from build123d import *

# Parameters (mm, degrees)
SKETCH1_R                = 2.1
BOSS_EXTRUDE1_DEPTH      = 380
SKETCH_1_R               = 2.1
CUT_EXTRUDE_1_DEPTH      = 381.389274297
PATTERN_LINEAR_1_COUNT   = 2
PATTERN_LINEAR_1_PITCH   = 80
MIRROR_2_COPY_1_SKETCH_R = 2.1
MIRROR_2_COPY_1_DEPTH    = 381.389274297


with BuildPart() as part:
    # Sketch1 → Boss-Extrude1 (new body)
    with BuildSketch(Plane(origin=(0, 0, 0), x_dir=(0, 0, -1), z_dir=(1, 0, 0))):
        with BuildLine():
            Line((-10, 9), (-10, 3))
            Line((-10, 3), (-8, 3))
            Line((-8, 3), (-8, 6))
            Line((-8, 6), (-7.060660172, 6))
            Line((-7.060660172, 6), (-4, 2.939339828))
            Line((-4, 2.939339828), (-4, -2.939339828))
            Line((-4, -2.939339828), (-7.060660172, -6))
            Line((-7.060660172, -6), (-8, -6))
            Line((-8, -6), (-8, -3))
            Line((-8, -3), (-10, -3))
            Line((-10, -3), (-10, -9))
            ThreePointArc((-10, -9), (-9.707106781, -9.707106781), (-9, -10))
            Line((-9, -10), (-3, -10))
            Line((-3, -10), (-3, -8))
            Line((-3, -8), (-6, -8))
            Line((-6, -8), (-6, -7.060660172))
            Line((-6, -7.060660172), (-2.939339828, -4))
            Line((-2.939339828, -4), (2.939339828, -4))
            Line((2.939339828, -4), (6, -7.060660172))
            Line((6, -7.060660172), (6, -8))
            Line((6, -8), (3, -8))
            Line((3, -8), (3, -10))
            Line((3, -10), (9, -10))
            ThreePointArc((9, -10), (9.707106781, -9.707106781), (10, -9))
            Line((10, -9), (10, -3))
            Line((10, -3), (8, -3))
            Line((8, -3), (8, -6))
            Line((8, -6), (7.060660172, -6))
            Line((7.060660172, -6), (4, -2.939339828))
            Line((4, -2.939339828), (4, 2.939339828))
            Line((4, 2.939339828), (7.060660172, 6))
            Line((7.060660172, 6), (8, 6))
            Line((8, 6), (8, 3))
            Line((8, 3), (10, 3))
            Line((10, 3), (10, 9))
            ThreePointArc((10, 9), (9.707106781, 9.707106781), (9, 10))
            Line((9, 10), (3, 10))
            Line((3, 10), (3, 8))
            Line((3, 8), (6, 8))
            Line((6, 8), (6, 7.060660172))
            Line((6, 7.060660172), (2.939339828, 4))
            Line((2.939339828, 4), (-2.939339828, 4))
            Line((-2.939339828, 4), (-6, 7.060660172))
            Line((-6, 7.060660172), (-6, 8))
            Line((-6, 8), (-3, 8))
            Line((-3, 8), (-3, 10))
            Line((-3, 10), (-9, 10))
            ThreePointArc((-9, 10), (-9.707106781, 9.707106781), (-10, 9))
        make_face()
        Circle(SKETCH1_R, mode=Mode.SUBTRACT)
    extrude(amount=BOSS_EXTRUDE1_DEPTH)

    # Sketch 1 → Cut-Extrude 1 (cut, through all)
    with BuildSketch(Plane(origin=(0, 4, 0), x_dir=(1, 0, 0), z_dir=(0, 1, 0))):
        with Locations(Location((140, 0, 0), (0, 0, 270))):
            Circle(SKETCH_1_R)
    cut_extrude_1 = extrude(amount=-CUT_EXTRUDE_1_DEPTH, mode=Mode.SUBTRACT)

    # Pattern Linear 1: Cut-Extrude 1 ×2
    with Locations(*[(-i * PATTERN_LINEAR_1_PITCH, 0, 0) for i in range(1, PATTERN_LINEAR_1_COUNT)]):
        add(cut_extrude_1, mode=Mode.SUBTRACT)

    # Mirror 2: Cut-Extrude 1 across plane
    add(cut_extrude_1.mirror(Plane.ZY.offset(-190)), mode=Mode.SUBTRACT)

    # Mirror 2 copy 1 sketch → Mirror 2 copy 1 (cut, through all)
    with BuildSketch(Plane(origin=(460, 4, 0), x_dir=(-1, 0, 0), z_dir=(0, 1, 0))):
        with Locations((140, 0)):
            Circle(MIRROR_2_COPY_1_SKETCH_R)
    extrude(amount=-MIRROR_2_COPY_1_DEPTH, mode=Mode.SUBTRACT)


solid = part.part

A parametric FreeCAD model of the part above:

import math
import FreeCAD as App
import Part
import Sketcher
from FreeCAD import Vector

doc = App.newDocument("Part")
params = doc.addObject("Spreadsheet::Sheet", "Params")
for row, (alias, value) in enumerate([
    ("sketch1_radius", "1 mm"),
    ("sketch1_diameter", "4.2 mm"),
    ("sketch1_width", "6 mm"),
    ("sketch1_width2", "3 mm"),
    ("sketch1_width3", "2 mm"),
    ("pad1_length", "380 mm"),
    ("sketch2_diameter", "4.2 mm"),
    ("linearpattern_pitch", "80 mm"),
    ("sketch3_diameter", "4.2 mm"),
], start=1):
    params.set(f"A{row}", alias)
    params.set(f"B{row}", "=" + value)
    params.setAlias(f"B{row}", alias)

body = doc.addObject("PartDesign::Body", "Body")

# Sketch on YZ plane
sketch1 = body.newObject("Sketcher::SketchObject", "Sketch")
sketch1.AttachmentSupport = (doc.getObject("YZ_Plane"), [""])
sketch1.MapMode = "FlatFace"
sketch1.addGeometry(Part.LineSegment(Vector(9, 10, 0), Vector(3, 10, 0)), False)
sketch1.addGeometry(Part.LineSegment(Vector(3, 10, 0), Vector(3, 8, 0)), False)
sketch1.addGeometry(Part.LineSegment(Vector(3, 8, 0), Vector(6, 8, 0)), False)
sketch1.addGeometry(Part.LineSegment(Vector(6, 8, 0), Vector(6, 7.1, 0)), False)
sketch1.addGeometry(Part.LineSegment(Vector(6, 7.1, 0), Vector(2.9, 4, 0)), False)
sketch1.addGeometry(Part.LineSegment(Vector(2.9, 4, 0), Vector(-2.9, 4, 0)), False)
sketch1.addGeometry(Part.LineSegment(Vector(-2.9, 4, 0), Vector(-6, 7.1, 0)), False)
sketch1.addGeometry(Part.LineSegment(Vector(-6, 7.1, 0), Vector(-6, 8, 0)), False)
sketch1.addGeometry(Part.LineSegment(Vector(-6, 8, 0), Vector(-3, 8, 0)), False)
sketch1.addGeometry(Part.LineSegment(Vector(-3, 8, 0), Vector(-3, 10, 0)), False)
sketch1.addGeometry(Part.LineSegment(Vector(-3, 10, 0), Vector(-9, 10, 0)), False)
sketch1.addGeometry(Part.ArcOfCircle(Part.Circle(Vector(-9, 9, 0), Vector(0, 0, 1), 1), math.radians(90), math.radians(180)), False)
sketch1.addGeometry(Part.LineSegment(Vector(-10, 9, 0), Vector(-10, 3, 0)), False)
sketch1.addGeometry(Part.LineSegment(Vector(-10, 3, 0), Vector(-8, 3, 0)), False)
sketch1.addGeometry(Part.LineSegment(Vector(-8, 3, 0), Vector(-8, 6, 0)), False)
sketch1.addGeometry(Part.LineSegment(Vector(-8, 6, 0), Vector(-7.1, 6, 0)), False)
sketch1.addGeometry(Part.LineSegment(Vector(-7.1, 6, 0), Vector(-4, 2.9, 0)), False)
sketch1.addGeometry(Part.LineSegment(Vector(-4, 2.9, 0), Vector(-4, -2.9, 0)), False)
sketch1.addGeometry(Part.LineSegment(Vector(-4, -2.9, 0), Vector(-7.1, -6, 0)), False)
sketch1.addGeometry(Part.LineSegment(Vector(-7.1, -6, 0), Vector(-8, -6, 0)), False)
sketch1.addGeometry(Part.LineSegment(Vector(-8, -6, 0), Vector(-8, -3, 0)), False)
sketch1.addGeometry(Part.LineSegment(Vector(-8, -3, 0), Vector(-10, -3, 0)), False)
sketch1.addGeometry(Part.LineSegment(Vector(-10, -3, 0), Vector(-10, -9, 0)), False)
sketch1.addGeometry(Part.ArcOfCircle(Part.Circle(Vector(-9, -9, 0), Vector(0, 0, 1), 1), math.radians(-180), math.radians(-90)), False)
sketch1.addGeometry(Part.LineSegment(Vector(-9, -10, 0), Vector(-3, -10, 0)), False)
sketch1.addGeometry(Part.LineSegment(Vector(-3, -10, 0), Vector(-3, -8, 0)), False)
sketch1.addGeometry(Part.LineSegment(Vector(-3, -8, 0), Vector(-6, -8, 0)), False)
sketch1.addGeometry(Part.LineSegment(Vector(-6, -8, 0), Vector(-6, -7.1, 0)), False)
sketch1.addGeometry(Part.LineSegment(Vector(-6, -7.1, 0), Vector(-2.9, -4, 0)), False)
sketch1.addGeometry(Part.LineSegment(Vector(-2.9, -4, 0), Vector(2.9, -4, 0)), False)
sketch1.addGeometry(Part.LineSegment(Vector(2.9, -4, 0), Vector(6, -7.1, 0)), False)
sketch1.addGeometry(Part.LineSegment(Vector(6, -7.1, 0), Vector(6, -8, 0)), False)
sketch1.addGeometry(Part.LineSegment(Vector(6, -8, 0), Vector(3, -8, 0)), False)
sketch1.addGeometry(Part.LineSegment(Vector(3, -8, 0), Vector(3, -10, 0)), False)
sketch1.addGeometry(Part.LineSegment(Vector(3, -10, 0), Vector(9, -10, 0)), False)
sketch1.addGeometry(Part.ArcOfCircle(Part.Circle(Vector(9, -9, 0), Vector(0, 0, 1), 1), math.radians(-90), math.radians(0)), False)
sketch1.addGeometry(Part.LineSegment(Vector(10, -9, 0), Vector(10, -3, 0)), False)
sketch1.addGeometry(Part.LineSegment(Vector(10, -3, 0), Vector(8, -3, 0)), False)
sketch1.addGeometry(Part.LineSegment(Vector(8, -3, 0), Vector(8, -6, 0)), False)
sketch1.addGeometry(Part.LineSegment(Vector(8, -6, 0), Vector(7.1, -6, 0)), False)
sketch1.addGeometry(Part.LineSegment(Vector(7.1, -6, 0), Vector(4, -2.9, 0)), False)
sketch1.addGeometry(Part.LineSegment(Vector(4, -2.9, 0), Vector(4, 2.9, 0)), False)
sketch1.addGeometry(Part.LineSegment(Vector(4, 2.9, 0), Vector(7.1, 6, 0)), False)
sketch1.addGeometry(Part.LineSegment(Vector(7.1, 6, 0), Vector(8, 6, 0)), False)
sketch1.addGeometry(Part.LineSegment(Vector(8, 6, 0), Vector(8, 3, 0)), False)
sketch1.addGeometry(Part.LineSegment(Vector(8, 3, 0), Vector(10, 3, 0)), False)
sketch1.addGeometry(Part.LineSegment(Vector(10, 3, 0), Vector(10, 9, 0)), False)
sketch1.addGeometry(Part.ArcOfCircle(Part.Circle(Vector(9, 9, 0), Vector(0, 0, 1), 1), math.radians(0), math.radians(90)), False)
sketch1.addGeometry(Part.Circle(Vector(0, 0, 0), Vector(0, 0, 1), 2.1), False)
sketch1.addConstraint(Sketcher.Constraint("Coincident", 0, 2, 1, 1))
sketch1.addConstraint(Sketcher.Constraint("Coincident", 1, 2, 2, 1))
sketch1.addConstraint(Sketcher.Constraint("Coincident", 2, 2, 3, 1))
sketch1.addConstraint(Sketcher.Constraint("Coincident", 3, 2, 4, 1))
sketch1.addConstraint(Sketcher.Constraint("Coincident", 4, 2, 5, 1))
sketch1.addConstraint(Sketcher.Constraint("Coincident", 5, 2, 6, 1))
sketch1.addConstraint(Sketcher.Constraint("Coincident", 6, 2, 7, 1))
sketch1.addConstraint(Sketcher.Constraint("Coincident", 7, 2, 8, 1))
sketch1.addConstraint(Sketcher.Constraint("Coincident", 8, 2, 9, 1))
sketch1.addConstraint(Sketcher.Constraint("Coincident", 9, 2, 10, 1))
sketch1.addConstraint(Sketcher.Constraint("Tangent", 10, 2, 11, 1))
sketch1.addConstraint(Sketcher.Constraint("Tangent", 11, 2, 12, 1))
sketch1.addConstraint(Sketcher.Constraint("Coincident", 12, 2, 13, 1))
sketch1.addConstraint(Sketcher.Constraint("Coincident", 13, 2, 14, 1))
sketch1.addConstraint(Sketcher.Constraint("Coincident", 14, 2, 15, 1))
sketch1.addConstraint(Sketcher.Constraint("Coincident", 15, 2, 16, 1))
sketch1.addConstraint(Sketcher.Constraint("Coincident", 16, 2, 17, 1))
sketch1.addConstraint(Sketcher.Constraint("Coincident", 17, 2, 18, 1))
sketch1.addConstraint(Sketcher.Constraint("Coincident", 18, 2, 19, 1))
sketch1.addConstraint(Sketcher.Constraint("Coincident", 19, 2, 20, 1))
sketch1.addConstraint(Sketcher.Constraint("Coincident", 20, 2, 21, 1))
sketch1.addConstraint(Sketcher.Constraint("Coincident", 21, 2, 22, 1))
sketch1.addConstraint(Sketcher.Constraint("Tangent", 22, 2, 23, 1))
sketch1.addConstraint(Sketcher.Constraint("Tangent", 23, 2, 24, 1))
sketch1.addConstraint(Sketcher.Constraint("Coincident", 24, 2, 25, 1))
sketch1.addConstraint(Sketcher.Constraint("Coincident", 25, 2, 26, 1))
sketch1.addConstraint(Sketcher.Constraint("Coincident", 26, 2, 27, 1))
sketch1.addConstraint(Sketcher.Constraint("Coincident", 27, 2, 28, 1))
sketch1.addConstraint(Sketcher.Constraint("Coincident", 28, 2, 29, 1))
sketch1.addConstraint(Sketcher.Constraint("Coincident", 29, 2, 30, 1))
sketch1.addConstraint(Sketcher.Constraint("Coincident", 30, 2, 31, 1))
sketch1.addConstraint(Sketcher.Constraint("Coincident", 31, 2, 32, 1))
sketch1.addConstraint(Sketcher.Constraint("Coincident", 32, 2, 33, 1))
sketch1.addConstraint(Sketcher.Constraint("Coincident", 33, 2, 34, 1))
sketch1.addConstraint(Sketcher.Constraint("Tangent", 34, 2, 35, 1))
sketch1.addConstraint(Sketcher.Constraint("Tangent", 35, 2, 36, 1))
sketch1.addConstraint(Sketcher.Constraint("Coincident", 36, 2, 37, 1))
sketch1.addConstraint(Sketcher.Constraint("Coincident", 37, 2, 38, 1))
sketch1.addConstraint(Sketcher.Constraint("Coincident", 38, 2, 39, 1))
sketch1.addConstraint(Sketcher.Constraint("Coincident", 39, 2, 40, 1))
sketch1.addConstraint(Sketcher.Constraint("Coincident", 40, 2, 41, 1))
sketch1.addConstraint(Sketcher.Constraint("Coincident", 41, 2, 42, 1))
sketch1.addConstraint(Sketcher.Constraint("Coincident", 42, 2, 43, 1))
sketch1.addConstraint(Sketcher.Constraint("Coincident", 43, 2, 44, 1))
sketch1.addConstraint(Sketcher.Constraint("Coincident", 44, 2, 45, 1))
sketch1.addConstraint(Sketcher.Constraint("Coincident", 45, 2, 46, 1))
sketch1.addConstraint(Sketcher.Constraint("Tangent", 46, 2, 47, 1))
sketch1.addConstraint(Sketcher.Constraint("Tangent", 47, 2, 0, 1))
sketch1.addConstraint(Sketcher.Constraint("Horizontal", 0))
sketch1.addConstraint(Sketcher.Constraint("Vertical", 1))
sketch1.addConstraint(Sketcher.Constraint("Horizontal", 2))
sketch1.addConstraint(Sketcher.Constraint("Vertical", 3))
sketch1.addConstraint(Sketcher.Constraint("Horizontal", 5))
sketch1.addConstraint(Sketcher.Constraint("Vertical", 7))
sketch1.addConstraint(Sketcher.Constraint("Horizontal", 8))
sketch1.addConstraint(Sketcher.Constraint("Vertical", 9))
sketch1.addConstraint(Sketcher.Constraint("Horizontal", 10))
sketch1.addConstraint(Sketcher.Constraint("Vertical", 12))
sketch1.addConstraint(Sketcher.Constraint("Horizontal", 13))
sketch1.addConstraint(Sketcher.Constraint("Vertical", 14))
sketch1.addConstraint(Sketcher.Constraint("Horizontal", 15))
sketch1.addConstraint(Sketcher.Constraint("Vertical", 17))
sketch1.addConstraint(Sketcher.Constraint("Horizontal", 19))
sketch1.addConstraint(Sketcher.Constraint("Vertical", 20))
sketch1.addConstraint(Sketcher.Constraint("Horizontal", 21))
sketch1.addConstraint(Sketcher.Constraint("Vertical", 22))
sketch1.addConstraint(Sketcher.Constraint("Horizontal", 24))
sketch1.addConstraint(Sketcher.Constraint("Vertical", 25))
sketch1.addConstraint(Sketcher.Constraint("Horizontal", 26))
sketch1.addConstraint(Sketcher.Constraint("Vertical", 27))
sketch1.addConstraint(Sketcher.Constraint("Horizontal", 29))
sketch1.addConstraint(Sketcher.Constraint("Vertical", 31))
sketch1.addConstraint(Sketcher.Constraint("Horizontal", 32))
sketch1.addConstraint(Sketcher.Constraint("Vertical", 33))
sketch1.addConstraint(Sketcher.Constraint("Horizontal", 34))
sketch1.addConstraint(Sketcher.Constraint("Vertical", 36))
sketch1.addConstraint(Sketcher.Constraint("Horizontal", 37))
sketch1.addConstraint(Sketcher.Constraint("Vertical", 38))
sketch1.addConstraint(Sketcher.Constraint("Horizontal", 39))
sketch1.addConstraint(Sketcher.Constraint("Vertical", 41))
sketch1.addConstraint(Sketcher.Constraint("Horizontal", 43))
sketch1.addConstraint(Sketcher.Constraint("Vertical", 44))
sketch1.addConstraint(Sketcher.Constraint("Horizontal", 45))
sketch1.addConstraint(Sketcher.Constraint("Vertical", 46))
sketch1.addConstraint(Sketcher.Constraint("Coincident", 48, 3, -1, 1))
sketch1.addConstraint(Sketcher.Constraint("Equal", 11, 23))
sketch1.addConstraint(Sketcher.Constraint("Equal", 23, 35))
sketch1.addConstraint(Sketcher.Constraint("Equal", 35, 47))
sketch1.addConstraint(Sketcher.Constraint("Symmetric", 11, 3, 35, 3, -1, 1))
sketch1.addConstraint(Sketcher.Constraint("Symmetric", 23, 3, 47, 3, -1, 1))
sketch1.addConstraint(Sketcher.Constraint("Symmetric", 1, 2, 25, 2, -1, 1))
sketch1.addConstraint(Sketcher.Constraint("Symmetric", 3, 2, 27, 2, -1, 1))
sketch1.addConstraint(Sketcher.Constraint("Symmetric", 4, 2, 28, 2, -1, 1))
sketch1.addConstraint(Sketcher.Constraint("Symmetric", 6, 2, 30, 2, -1, 1))
sketch1.addConstraint(Sketcher.Constraint("Symmetric", 8, 2, 32, 2, -1, 1))
sketch1.addConstraint(Sketcher.Constraint("Symmetric", 13, 2, 37, 2, -1, 1))
sketch1.addConstraint(Sketcher.Constraint("Symmetric", 15, 2, 39, 2, -1, 1))
sketch1.addConstraint(Sketcher.Constraint("Symmetric", 16, 2, 40, 2, -1, 1))
sketch1.addConstraint(Sketcher.Constraint("Symmetric", 18, 2, 42, 2, -1, 1))
sketch1.addConstraint(Sketcher.Constraint("Symmetric", 20, 2, 44, 2, -1, 1))
sketch1.addConstraint(Sketcher.Constraint("Symmetric", 23, 3, 35, 3, -2))
sketch1.addConstraint(Sketcher.Constraint("Symmetric", 3, 2, 6, 2, -2))
sketch1.addConstraint(Sketcher.Constraint("Symmetric", 1, 2, 8, 2, -2))
sketch1.addConstraint(Sketcher.Constraint("Symmetric", 20, 2, 37, 2, -2))
sketch1.addConstraint(Sketcher.Constraint("Symmetric", 18, 2, 39, 2, -2))
sketch1.addConstraint(Sketcher.Constraint("Perpendicular", 4, 6))
sketch1.addConstraint(Sketcher.Constraint("Parallel", 6, 16))
sketch1.addConstraint(Sketcher.Constraint("Perpendicular", 16, 18))
sketch1.addConstraint(Sketcher.Constraint("Perpendicular", 28, 30))
sketch1.addConstraint(Sketcher.Constraint("Perpendicular", 40, 42))
sketch1.addConstraint(Sketcher.Constraint("Horizontal", 17, 2, 40, 2))
sketch1.addConstraint(Sketcher.Constraint("Equal", 45, 1))
sketch1.addConstraint(Sketcher.Constraint("Equal", 43, 3))
sketch1.addConstraint(Sketcher.Constraint("Equal", 34, 12))
sketch1.addConstraint(Sketcher.Constraint("Equal", 32, 14))
sketch1.addConstraint(Sketcher.Constraint("Equal", 29, 17))
sketch1.addConstraint(Sketcher.Constraint("Equal", 6, 16))
sketch1.addConstraint(Sketcher.Constraint("Radius", 11, 1.0))
sketch1.addConstraint(Sketcher.Constraint("Diameter", 48, 4.2))
sketch1.addConstraint(Sketcher.Constraint("DistanceX", 0, 2, 0, 1, 6.0))
sketch1.addConstraint(Sketcher.Constraint("DistanceX", 2, 1, 2, 2, 3.0))
sketch1.addConstraint(Sketcher.Constraint("DistanceX", 13, 1, 13, 2, 2.0))
sketch1.addConstraint(Sketcher.Constraint("DistanceX", 11, 3, -1, 1, 9.0))
sketch1.addConstraint(Sketcher.Constraint("DistanceY", -1, 1, 4, 2, 4.0))
sketch1.addConstraint(Sketcher.Constraint("DistanceX", 5, 2, 5, 1, 5.87868))
sketch1.setExpression("Constraints[117]", "Params.sketch1_radius")
sketch1.setExpression("Constraints[118]", "Params.sketch1_diameter")
sketch1.setExpression("Constraints[119]", "Params.sketch1_width")
sketch1.setExpression("Constraints[120]", "Params.sketch1_width2")
sketch1.setExpression("Constraints[121]", "Params.sketch1_width3")
pad1 = body.newObject("PartDesign::Pad", "Pad")
pad1.Profile = sketch1
pad1.setExpression("Length", "Params.pad1_length")

# Sketch on XZ plane
sketch2 = body.newObject("Sketcher::SketchObject", "Sketch001")
sketch2.AttachmentSupport = (doc.getObject("XZ_Plane"), [""])
sketch2.MapMode = "FlatFace"
sketch2.AttachmentOffset = App.Placement(Vector(0, 0, -4), App.Rotation())
sketch2.addGeometry(Part.Circle(Vector(140, 0, 0), Vector(0, 0, 1), 2.1), False)
sketch2.addConstraint(Sketcher.Constraint("PointOnObject", 0, 3, -1))
sketch2.addConstraint(Sketcher.Constraint("Diameter", 0, 4.2))
sketch2.addConstraint(Sketcher.Constraint("DistanceX", -1, 1, 0, 3, 140.0))
sketch2.setExpression("Constraints[1]", "Params.sketch2_diameter")
pocket1 = body.newObject("PartDesign::Pocket", "Pocket")
pocket1.Profile = sketch2
pocket1.Type = "ThroughAll"
pocket1.Reversed = True
doc.recompute()

linearpattern = body.newObject("PartDesign::LinearPattern", "LinearPattern")
linearpattern.Originals = [pocket1]
linearpattern.Direction = (doc.getObject("X_Axis"), [""])
linearpattern.Mode = "offset"
linearpattern.setExpression("Offset", "Params.linearpattern_pitch")
linearpattern.Occurrences = 2
linearpattern.Reversed = True
body.Tip = linearpattern
doc.recompute()

datumplane = body.newObject("PartDesign::Plane", "DatumPlane")
datumplane.AttachmentSupport = (doc.getObject("YZ_Plane"), [""])
datumplane.MapMode = "FlatFace"
datumplane.AttachmentOffset = App.Placement(Vector(0, 0, 190), App.Rotation())
mirrored = body.newObject("PartDesign::Mirrored", "Mirrored")
mirrored.Originals = [pocket1]
mirrored.MirrorPlane = (datumplane, [""])
body.Tip = mirrored

# Sketch on XZ plane
sketch3 = body.newObject("Sketcher::SketchObject", "Sketch002")
sketch3.AttachmentSupport = (doc.getObject("XZ_Plane"), [""])
sketch3.MapMode = "FlatFace"
sketch3.AttachmentOffset = App.Placement(Vector(0, 0, -4), App.Rotation())
sketch3.addGeometry(Part.Circle(Vector(320, 0, 0), Vector(0, 0, 1), 2.1), False)
sketch3.addConstraint(Sketcher.Constraint("PointOnObject", 0, 3, -1))
sketch3.addConstraint(Sketcher.Constraint("Diameter", 0, 4.2))
sketch3.addConstraint(Sketcher.Constraint("DistanceX", -1, 1, 0, 3, 320.0))
sketch3.setExpression("Constraints[1]", "Params.sketch3_diameter")
pocket2 = body.newObject("PartDesign::Pocket", "Pocket001")
pocket2.Profile = sketch3
pocket2.Type = "ThroughAll"
pocket2.Reversed = True

doc.recompute()
